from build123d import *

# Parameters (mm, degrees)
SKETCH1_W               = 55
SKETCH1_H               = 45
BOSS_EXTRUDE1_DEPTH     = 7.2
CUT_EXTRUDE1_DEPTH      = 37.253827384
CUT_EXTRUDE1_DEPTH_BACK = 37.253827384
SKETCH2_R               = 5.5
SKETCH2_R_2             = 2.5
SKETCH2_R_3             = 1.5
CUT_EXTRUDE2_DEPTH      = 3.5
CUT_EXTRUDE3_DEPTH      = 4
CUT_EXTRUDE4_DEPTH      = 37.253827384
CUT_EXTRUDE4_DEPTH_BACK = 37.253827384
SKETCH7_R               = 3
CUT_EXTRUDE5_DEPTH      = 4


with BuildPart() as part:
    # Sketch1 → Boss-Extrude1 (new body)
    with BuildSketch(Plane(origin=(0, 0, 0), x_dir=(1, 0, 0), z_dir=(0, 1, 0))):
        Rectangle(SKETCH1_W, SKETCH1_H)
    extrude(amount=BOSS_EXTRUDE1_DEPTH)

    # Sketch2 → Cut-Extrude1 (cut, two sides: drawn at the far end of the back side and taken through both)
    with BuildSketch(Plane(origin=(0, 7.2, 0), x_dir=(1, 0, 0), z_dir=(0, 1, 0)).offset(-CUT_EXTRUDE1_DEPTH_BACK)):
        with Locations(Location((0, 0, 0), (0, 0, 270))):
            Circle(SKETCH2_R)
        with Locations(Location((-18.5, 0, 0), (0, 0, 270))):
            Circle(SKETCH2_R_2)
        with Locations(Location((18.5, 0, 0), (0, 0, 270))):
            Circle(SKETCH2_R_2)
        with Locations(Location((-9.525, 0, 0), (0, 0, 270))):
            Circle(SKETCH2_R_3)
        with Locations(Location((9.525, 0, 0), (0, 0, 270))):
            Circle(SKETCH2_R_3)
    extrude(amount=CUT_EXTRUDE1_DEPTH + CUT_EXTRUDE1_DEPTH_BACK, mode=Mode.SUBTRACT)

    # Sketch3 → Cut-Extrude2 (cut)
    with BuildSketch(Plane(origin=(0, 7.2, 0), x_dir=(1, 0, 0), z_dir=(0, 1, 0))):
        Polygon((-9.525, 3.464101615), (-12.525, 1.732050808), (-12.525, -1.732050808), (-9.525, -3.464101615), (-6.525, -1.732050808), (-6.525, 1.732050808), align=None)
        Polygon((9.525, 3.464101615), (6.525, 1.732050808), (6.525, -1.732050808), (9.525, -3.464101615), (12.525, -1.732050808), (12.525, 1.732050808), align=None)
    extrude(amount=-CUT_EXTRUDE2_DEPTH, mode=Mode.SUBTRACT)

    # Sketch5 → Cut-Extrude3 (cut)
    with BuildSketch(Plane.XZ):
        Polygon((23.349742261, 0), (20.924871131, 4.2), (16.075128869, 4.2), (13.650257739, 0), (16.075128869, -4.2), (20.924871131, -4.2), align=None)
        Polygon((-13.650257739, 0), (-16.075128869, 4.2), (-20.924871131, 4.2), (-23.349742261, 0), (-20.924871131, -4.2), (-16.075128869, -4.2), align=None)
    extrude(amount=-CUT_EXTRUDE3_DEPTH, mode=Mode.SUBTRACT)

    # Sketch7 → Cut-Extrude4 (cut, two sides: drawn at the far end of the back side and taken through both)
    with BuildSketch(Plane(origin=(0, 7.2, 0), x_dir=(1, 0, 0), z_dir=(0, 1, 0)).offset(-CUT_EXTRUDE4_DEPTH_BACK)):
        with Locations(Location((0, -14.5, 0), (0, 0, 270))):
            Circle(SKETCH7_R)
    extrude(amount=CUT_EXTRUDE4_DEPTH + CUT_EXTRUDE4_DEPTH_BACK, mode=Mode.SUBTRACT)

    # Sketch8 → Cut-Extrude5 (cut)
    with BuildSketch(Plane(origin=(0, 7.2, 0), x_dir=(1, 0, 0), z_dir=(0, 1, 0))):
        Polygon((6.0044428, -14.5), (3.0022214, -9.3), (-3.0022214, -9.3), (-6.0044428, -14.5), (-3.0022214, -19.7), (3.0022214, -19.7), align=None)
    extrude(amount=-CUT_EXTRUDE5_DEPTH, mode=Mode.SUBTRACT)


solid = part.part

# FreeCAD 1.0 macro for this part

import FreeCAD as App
import Part
import Sketcher
from FreeCAD import Vector
Q = App.Units.Quantity

doc = App.newDocument("Part")
body = doc.addObject("PartDesign::Body", "Body")

sketch1 = body.newObject("Sketcher::SketchObject", "Sketch")
sketch1.AttachmentSupport = (doc.getObject("XZ_Plane"), [""])
sketch1.MapMode = "FlatFace"
sketch1.addGeometry(Part.LineSegment(Vector(-28, -22, 0), Vector(-28, 22, 0)), False)
sketch1.addGeometry(Part.LineSegment(Vector(-28, 22, 0), Vector(28, 22, 0)), False)
sketch1.addGeometry(Part.LineSegment(Vector(28, 22, 0), Vector(28, -22, 0)), False)
sketch1.addGeometry(Part.LineSegment(Vector(28, -22, 0), Vector(-28, -22, 0)), False)
sketch1.addConstraint(Sketcher.Constraint("Coincident", 0, 2, 1, 1))
sketch1.addConstraint(Sketcher.Constraint("Coincident", 1, 2, 2, 1))
sketch1.addConstraint(Sketcher.Constraint("Coincident", 2, 2, 3, 1))
sketch1.addConstraint(Sketcher.Constraint("Coincident", 3, 2, 0, 1))
sketch1.addConstraint(Sketcher.Constraint("Vertical", 0))
sketch1.addConstraint(Sketcher.Constraint("Horizontal", 1))
sketch1.addConstraint(Sketcher.Constraint("Vertical", 2))
sketch1.addConstraint(Sketcher.Constraint("Horizontal", 3))
sketch1.addConstraint(Sketcher.Constraint("Symmetric", 0, 2, 2, 2, -1, 1))
sketch1.addConstraint(Sketcher.Constraint("DistanceX", 1, 1, 1, 2, 55.0))
sketch1.addConstraint(Sketcher.Constraint("DistanceY", 0, 1, 0, 2, 45.0))
pad1 = body.newObject("PartDesign::Pad", "Pad")
pad1.Profile = sketch1
pad1.Length = 7.2
pad1.Reversed = True

sketch2 = body.newObject("Sketcher::SketchObject", "Sketch001")
sketch2.AttachmentSupport = (doc.getObject("XZ_Plane"), [""])
sketch2.MapMode = "FlatFace"
sketch2.AttachmentOffset = App.Placement(Vector(0, 0, -7.2), App.Rotation())
sketch2.addGeometry(Part.Circle(Vector(0, 0, 0), Vector(0, 0, 1), 5.5), False)
sketch2.addGeometry(Part.Circle(Vector(-18.5, 0, 0), Vector(0, 0, 1), 2.5), False)
sketch2.addGeometry(Part.Circle(Vector(18.5, 0, 0), Vector(0, 0, 1), 2.5), False)
sketch2.addGeometry(Part.Circle(Vector(-9.5, 0, 0), Vector(0, 0, 1), 1.5), False)
sketch2.addGeometry(Part.Circle(Vector(9.5, 0, 0), Vector(0, 0, 1), 1.5), False)
sketch2.addConstraint(Sketcher.Constraint("Coincident", 0, 3, -1, 1))
sketch2.addConstraint(Sketcher.Constraint("Equal", 1, 2))
sketch2.addConstraint(Sketcher.Constraint("Equal", 3, 4))
sketch2.addConstraint(Sketcher.Constraint("Symmetric", 1, 3, 2, 3, -1, 1))
sketch2.addConstraint(Sketcher.Constraint("Symmetric", 3, 3, 4, 3, -1, 1))
sketch2.addConstraint(Sketcher.Constraint("PointOnObject", 1, 3, -1))
sketch2.addConstraint(Sketcher.Constraint("PointOnObject", 3, 3, -1))
sketch2.addConstraint(Sketcher.Constraint("Diameter", 0, 11.0))
sketch2.addConstraint(Sketcher.Constraint("Diameter", 1, 5.0))
sketch2.addConstraint(Sketcher.Constraint("Diameter", 3, 3.0))
sketch2.addConstraint(Sketcher.Constraint("DistanceX", 1, 3, 2, 3, 37.0))
sketch2.addConstraint(Sketcher.Constraint("DistanceX", 3, 3, 4, 3, 19.05))
pocket1 = body.newObject("PartDesign::Pocket", "Pocket")
pocket1.Profile = sketch2
pocket1.Type = "ThroughAll"
pocket1.Midplane = True

sketch3 = body.newObject("Sketcher::SketchObject", "Sketch002")
sketch3.AttachmentSupport = (doc.getObject("XZ_Plane"), [""])
sketch3.MapMode = "FlatFace"
sketch3.AttachmentOffset = App.Placement(Vector(0, 0, -7.2), App.Rotation())
sketch3.addGeometry(Part.LineSegment(Vector(-9.5, -3.5, 0), Vector(-12.5, -1.7, 0)), False)
sketch3.addGeometry(Part.LineSegment(Vector(-12.5, -1.7, 0), Vector(-12.5, 1.7, 0)), False)
sketch3.addGeometry(Part.LineSegment(Vector(-12.5, 1.7, 0), Vector(-9.5, 3.5, 0)), False)
sketch3.addGeometry(Part.LineSegment(Vector(-9.5, 3.5, 0), Vector(-6.5, 1.7, 0)), False)
sketch3.addGeometry(Part.LineSegment(Vector(-6.5, 1.7, 0), Vector(-6.5, -1.7, 0)), False)
sketch3.addGeometry(Part.LineSegment(Vector(-6.5, -1.7, 0), Vector(-9.5, -3.5, 0)), False)
sketch3.addGeometry(Part.LineSegment(Vector(9.5, -3.5, 0), Vector(6.5, -1.7, 0)), False)
sketch3.addGeometry(Part.LineSegment(Vector(6.5, -1.7, 0), Vector(6.5, 1.7, 0)), False)
sketch3.addGeometry(Part.LineSegment(Vector(6.5, 1.7, 0), Vector(9.5, 3.5, 0)), False)
sketch3.addGeometry(Part.LineSegment(Vector(9.5, 3.5, 0), Vector(12.5, 1.7, 0)), False)
sketch3.addGeometry(Part.LineSegment(Vector(12.5, 1.7, 0), Vector(12.5, -1.7, 0)), False)
sketch3.addGeometry(Part.LineSegment(Vector(12.5, -1.7, 0), Vector(9.5, -3.5, 0)), False)
sketch3.addConstraint(Sketcher.Constraint("Coincident", 0, 2, 1, 1))
sketch3.addConstraint(Sketcher.Constraint("Coincident", 1, 2, 2, 1))
sketch3.addConstraint(Sketcher.Constraint("Coincident", 2, 2, 3, 1))
sketch3.addConstraint(Sketcher.Constraint("Coincident", 3, 2, 4, 1))
sketch3.addConstraint(Sketcher.Constraint("Coincident", 4, 2, 5, 1))
sketch3.addConstraint(Sketcher.Constraint("Coincident", 5, 2, 0, 1))
sketch3.addConstraint(Sketcher.Constraint("Coincident", 6, 2, 7, 1))
sketch3.addConstraint(Sketcher.Constraint("Coincident", 7, 2, 8, 1))
sketch3.addConstraint(Sketcher.Constraint("Coincident", 8, 2, 9, 1))
sketch3.addConstraint(Sketcher.Constraint("Coincident", 9, 2, 10, 1))
sketch3.addConstraint(Sketcher.Constraint("Coincident", 10, 2, 11, 1))
sketch3.addConstraint(Sketcher.Constraint("Coincident", 11, 2, 6, 1))
sketch3.addConstraint(Sketcher.Constraint("Vertical", 1))
sketch3.addConstraint(Sketcher.Constraint("Vertical", 4))
sketch3.addConstraint(Sketcher.Constraint("Vertical", 7))
sketch3.addConstraint(Sketcher.Constraint("Vertical", 10))
sketch3.addConstraint(Sketcher.Constraint("Symmetric", 3, 2, 6, 2, -1, 1))
sketch3.addConstraint(Sketcher.Constraint("Symmetric", 5, 2, 8, 2, -1, 1))
sketch3.addConstraint(Sketcher.Constraint("Symmetric", 0, 2, 9, 2, -1, 1))
sketch3.addConstraint(Sketcher.Constraint("Symmetric", 2, 2, 11, 2, -1, 1))
sketch3.addConstraint(Sketcher.Constraint("Symmetric", 2, 2, 8, 2, -2))
sketch3.addConstraint(Sketcher.Constraint("Parallel", 0, 3))
sketch3.addConstraint(Sketcher.Constraint("Parallel", 2, 5))
sketch3.addConstraint(Sketcher.Constraint("Parallel", 5, 8))
sketch3.addConstraint(Sketcher.Constraint("Parallel", 8, 11))
sketch3.addConstraint(Sketcher.Constraint("Horizontal", 1, 2, 3, 2))
sketch3.addConstraint(Sketcher.Constraint("Horizontal", 0, 2, 4, 2))
sketch3.addConstraint(Sketcher.Constraint("Angle", 0, Q("150 deg")))
sketch3.addConstraint(Sketcher.Constraint("DistanceX", 1, 2, 2, 2, 3.0))
sketch3.addConstraint(Sketcher.Constraint("DistanceX", 4, 2, 6, 2, 13.05))
sketch3.addConstraint(Sketcher.Constraint("DistanceY", 1, 1, 1, 2, 3.464102))
pocket2 = body.newObject("PartDesign::Pocket", "Pocket001")
pocket2.Profile = sketch3
pocket2.Length = 3.5
pocket2.Reversed = True

sketch4 = body.newObject("Sketcher::SketchObject", "Sketch003")
sketch4.AttachmentSupport = (doc.getObject("XZ_Plane"), [""])
sketch4.MapMode = "FlatFace"
sketch4.addGeometry(Part.LineSegment(Vector(23.3, 0, 0), Vector(20.9, 4.2, 0)), False)
sketch4.addGeometry(Part.LineSegment(Vector(20.9, 4.2, 0), Vector(16.1, 4.2, 0)), False)
sketch4.addGeometry(Part.LineSegment(Vector(16.1, 4.2, 0), Vector(13.7, 0, 0)), False)
sketch4.addGeometry(Part.LineSegment(Vector(13.7, 0, 0), Vector(16.1, -4.2, 0)), False)
sketch4.addGeometry(Part.LineSegment(Vector(16.1, -4.2, 0), Vector(20.9, -4.2, 0)), False)
sketch4.addGeometry(Part.LineSegment(Vector(20.9, -4.2, 0), Vector(23.3, 0, 0)), False)
sketch4.addGeometry(Part.LineSegment(Vector(-13.7, 0, 0), Vector(-16.1, 4.2, 0)), False)
sketch4.addGeometry(Part.LineSegment(Vector(-16.1, 4.2, 0), Vector(-20.9, 4.2, 0)), False)
sketch4.addGeometry(Part.LineSegment(Vector(-20.9, 4.2, 0), Vector(-23.3, 0, 0)), False)
sketch4.addGeometry(Part.LineSegment(Vector(-23.3, 0, 0), Vector(-20.9, -4.2, 0)), False)
sketch4.addGeometry(Part.LineSegment(Vector(-20.9, -4.2, 0), Vector(-16.1, -4.2, 0)), False)
sketch4.addGeometry(Part.LineSegment(Vector(-16.1, -4.2, 0), Vector(-13.7, 0, 0)), False)
sketch4.addConstraint(Sketcher.Constraint("Coincident", 0, 2, 1, 1))
sketch4.addConstraint(Sketcher.Constraint("Coincident", 1, 2, 2, 1))
sketch4.addConstraint(Sketcher.Constraint("Coincident", 2, 2, 3, 1))
sketch4.addConstraint(Sketcher.Constraint("Coincident", 3, 2, 4, 1))
sketch4.addConstraint(Sketcher.Constraint("Coincident", 4, 2, 5, 1))
sketch4.addConstraint(Sketcher.Constraint("Coincident", 5, 2, 0, 1))
sketch4.addConstraint(Sketcher.Constraint("Coincident", 6, 2, 7, 1))
sketch4.addConstraint(Sketcher.Constraint("Coincident", 7, 2, 8, 1))
sketch4.addConstraint(Sketcher.Constraint("Coincident", 8, 2, 9, 1))
sketch4.addConstraint(Sketcher.Constraint("Coincident", 9, 2, 10, 1))
sketch4.addConstraint(Sketcher.Constraint("Coincident", 10, 2, 11, 1))
sketch4.addConstraint(Sketcher.Constraint("Coincident", 11, 2, 6, 1))
sketch4.addConstraint(Sketcher.Constraint("Horizontal", 1))
sketch4.addConstraint(Sketcher.Constraint("Horizontal", 4))
sketch4.addConstraint(Sketcher.Constraint("Horizontal", 7))
sketch4.addConstraint(Sketcher.Constraint("Horizontal", 10))
sketch4.addConstraint(Sketcher.Constraint("Symmetric", 3, 2, 6, 2, -1, 1))
sketch4.addConstraint(Sketcher.Constraint("Symmetric", 5, 2, 8, 2, -1, 1))
sketch4.addConstraint(Sketcher.Constraint("Symmetric", 0, 2, 9, 2, -1, 1))
sketch4.addConstraint(Sketcher.Constraint("Symmetric", 2, 2, 11, 2, -1, 1))
sketch4.addConstraint(Sketcher.Constraint("Symmetric", 1, 2, 6, 2, -2))
sketch4.addConstraint(Sketcher.Constraint("PointOnObject", 2, 2, -1))
sketch4.addConstraint(Sketcher.Constraint("PointOnObject", 5, 2, -1))
sketch4.addConstraint(Sketcher.Constraint("Parallel", 0, 3))
sketch4.addConstraint(Sketcher.Constraint("Parallel", 2, 5))
sketch4.addConstraint(Sketcher.Constraint("Parallel", 5, 8))
sketch4.addConstraint(Sketcher.Constraint("Parallel", 8, 11))
sketch4.addConstraint(Sketcher.Constraint("Angle", 0, Q("120 deg")))
sketch4.addConstraint(Sketcher.Constraint("DistanceX", 6, 2, 0, 2, 37.0))
sketch4.addConstraint(Sketcher.Constraint("DistanceY", -1, 1, 0, 2, 4.2))
sketch4.addConstraint(Sketcher.Constraint("DistanceX", 1, 2, 1, 1, 4.849742))
pocket3 = body.newObject("PartDesign::Pocket", "Pocket002")
pocket3.Profile = sketch4
pocket3.Length = 4

sketch5 = body.newObject("Sketcher::SketchObject", "Sketch004")
sketch5.AttachmentSupport = (doc.getObject("XZ_Plane"), [""])
sketch5.MapMode = "FlatFace"
sketch5.AttachmentOffset = App.Placement(Vector(0, 0, -7.2), App.Rotation())
sketch5.addGeometry(Part.Circle(Vector(0, 14.5, 0), Vector(0, 0, 1), 3), False)
sketch5.addConstraint(Sketcher.Constraint("PointOnObject", 0, 3, -2))
sketch5.addConstraint(Sketcher.Constraint("Diameter", 0, 6.0))
sketch5.addConstraint(Sketcher.Constraint("DistanceY", -1, 1, 0, 3, 14.5))
pocket4 = body.newObject("PartDesign::Pocket", "Pocket003")
pocket4.Profile = sketch5
pocket4.Type = "ThroughAll"
pocket4.Midplane = True

sketch6 = body.newObject("Sketcher::SketchObject", "Sketch005")
sketch6.AttachmentSupport = (doc.getObject("XZ_Plane"), [""])
sketch6.MapMode = "FlatFace"
sketch6.AttachmentOffset = App.Placement(Vector(0, 0, -7.2), App.Rotation())
sketch6.addGeometry(Part.LineSegment(Vector(6, 14, 0), Vector(3, 9, 0)), False)
sketch6.addGeometry(Part.LineSegment(Vector(3, 9, 0), Vector(-3, 9, 0)), False)
sketch6.addGeometry(Part.LineSegment(Vector(-3, 9, 0), Vector(-6, 14, 0)), False)
sketch6.addGeometry(Part.LineSegment(Vector(-6, 14, 0), Vector(-3, 20, 0)), False)
sketch6.addGeometry(Part.LineSegment(Vector(-3, 20, 0), Vector(3, 20, 0)), False)
sketch6.addGeometry(Part.LineSegment(Vector(3, 20, 0), Vector(6, 14, 0)), False)
sketch6.addConstraint(Sketcher.Constraint("Coincident", 0, 2, 1, 1))
sketch6.addConstraint(Sketcher.Constraint("Coincident", 1, 2, 2, 1))
sketch6.addConstraint(Sketcher.Constraint("Coincident", 2, 2, 3, 1))
sketch6.addConstraint(Sketcher.Constraint("Coincident", 3, 2, 4, 1))
sketch6.addConstraint(Sketcher.Constraint("Coincident", 4, 2, 5, 1))
sketch6.addConstraint(Sketcher.Constraint("Coincident", 5, 2, 0, 1))
sketch6.addConstraint(Sketcher.Constraint("Horizontal", 1))
sketch6.addConstraint(Sketcher.Constraint("Horizontal", 4))
sketch6.addConstraint(Sketcher.Constraint("Symmetric", 2, 2, 5, 2, -2))
sketch6.addConstraint(Sketcher.Constraint("Parallel", 0, 3))
sketch6.addConstraint(Sketcher.Constraint("Parallel", 2, 5))
sketch6.addConstraint(Sketcher.Constraint("Vertical", 1, 2, 3, 2))
sketch6.addConstraint(Sketcher.Constraint("Vertical", 0, 2, 4, 2))
sketch6.addConstraint(Sketcher.Constraint("Angle", 0, Q("-120 deg")))
sketch6.addConstraint(Sketcher.Constraint("DistanceY", -1, 1, 0, 2, 9.3))
sketch6.addConstraint(Sketcher.Constraint("DistanceY", -1, 1, 2, 2, 14.5))
sketch6.addConstraint(Sketcher.Constraint("DistanceX", 1, 2, 1, 1, 6.004443))
pocket5 = body.newObject("PartDesign::Pocket", "Pocket004")
pocket5.Profile = sketch6
pocket5.Length = 4
pocket5.Reversed = True

doc.recompute()
